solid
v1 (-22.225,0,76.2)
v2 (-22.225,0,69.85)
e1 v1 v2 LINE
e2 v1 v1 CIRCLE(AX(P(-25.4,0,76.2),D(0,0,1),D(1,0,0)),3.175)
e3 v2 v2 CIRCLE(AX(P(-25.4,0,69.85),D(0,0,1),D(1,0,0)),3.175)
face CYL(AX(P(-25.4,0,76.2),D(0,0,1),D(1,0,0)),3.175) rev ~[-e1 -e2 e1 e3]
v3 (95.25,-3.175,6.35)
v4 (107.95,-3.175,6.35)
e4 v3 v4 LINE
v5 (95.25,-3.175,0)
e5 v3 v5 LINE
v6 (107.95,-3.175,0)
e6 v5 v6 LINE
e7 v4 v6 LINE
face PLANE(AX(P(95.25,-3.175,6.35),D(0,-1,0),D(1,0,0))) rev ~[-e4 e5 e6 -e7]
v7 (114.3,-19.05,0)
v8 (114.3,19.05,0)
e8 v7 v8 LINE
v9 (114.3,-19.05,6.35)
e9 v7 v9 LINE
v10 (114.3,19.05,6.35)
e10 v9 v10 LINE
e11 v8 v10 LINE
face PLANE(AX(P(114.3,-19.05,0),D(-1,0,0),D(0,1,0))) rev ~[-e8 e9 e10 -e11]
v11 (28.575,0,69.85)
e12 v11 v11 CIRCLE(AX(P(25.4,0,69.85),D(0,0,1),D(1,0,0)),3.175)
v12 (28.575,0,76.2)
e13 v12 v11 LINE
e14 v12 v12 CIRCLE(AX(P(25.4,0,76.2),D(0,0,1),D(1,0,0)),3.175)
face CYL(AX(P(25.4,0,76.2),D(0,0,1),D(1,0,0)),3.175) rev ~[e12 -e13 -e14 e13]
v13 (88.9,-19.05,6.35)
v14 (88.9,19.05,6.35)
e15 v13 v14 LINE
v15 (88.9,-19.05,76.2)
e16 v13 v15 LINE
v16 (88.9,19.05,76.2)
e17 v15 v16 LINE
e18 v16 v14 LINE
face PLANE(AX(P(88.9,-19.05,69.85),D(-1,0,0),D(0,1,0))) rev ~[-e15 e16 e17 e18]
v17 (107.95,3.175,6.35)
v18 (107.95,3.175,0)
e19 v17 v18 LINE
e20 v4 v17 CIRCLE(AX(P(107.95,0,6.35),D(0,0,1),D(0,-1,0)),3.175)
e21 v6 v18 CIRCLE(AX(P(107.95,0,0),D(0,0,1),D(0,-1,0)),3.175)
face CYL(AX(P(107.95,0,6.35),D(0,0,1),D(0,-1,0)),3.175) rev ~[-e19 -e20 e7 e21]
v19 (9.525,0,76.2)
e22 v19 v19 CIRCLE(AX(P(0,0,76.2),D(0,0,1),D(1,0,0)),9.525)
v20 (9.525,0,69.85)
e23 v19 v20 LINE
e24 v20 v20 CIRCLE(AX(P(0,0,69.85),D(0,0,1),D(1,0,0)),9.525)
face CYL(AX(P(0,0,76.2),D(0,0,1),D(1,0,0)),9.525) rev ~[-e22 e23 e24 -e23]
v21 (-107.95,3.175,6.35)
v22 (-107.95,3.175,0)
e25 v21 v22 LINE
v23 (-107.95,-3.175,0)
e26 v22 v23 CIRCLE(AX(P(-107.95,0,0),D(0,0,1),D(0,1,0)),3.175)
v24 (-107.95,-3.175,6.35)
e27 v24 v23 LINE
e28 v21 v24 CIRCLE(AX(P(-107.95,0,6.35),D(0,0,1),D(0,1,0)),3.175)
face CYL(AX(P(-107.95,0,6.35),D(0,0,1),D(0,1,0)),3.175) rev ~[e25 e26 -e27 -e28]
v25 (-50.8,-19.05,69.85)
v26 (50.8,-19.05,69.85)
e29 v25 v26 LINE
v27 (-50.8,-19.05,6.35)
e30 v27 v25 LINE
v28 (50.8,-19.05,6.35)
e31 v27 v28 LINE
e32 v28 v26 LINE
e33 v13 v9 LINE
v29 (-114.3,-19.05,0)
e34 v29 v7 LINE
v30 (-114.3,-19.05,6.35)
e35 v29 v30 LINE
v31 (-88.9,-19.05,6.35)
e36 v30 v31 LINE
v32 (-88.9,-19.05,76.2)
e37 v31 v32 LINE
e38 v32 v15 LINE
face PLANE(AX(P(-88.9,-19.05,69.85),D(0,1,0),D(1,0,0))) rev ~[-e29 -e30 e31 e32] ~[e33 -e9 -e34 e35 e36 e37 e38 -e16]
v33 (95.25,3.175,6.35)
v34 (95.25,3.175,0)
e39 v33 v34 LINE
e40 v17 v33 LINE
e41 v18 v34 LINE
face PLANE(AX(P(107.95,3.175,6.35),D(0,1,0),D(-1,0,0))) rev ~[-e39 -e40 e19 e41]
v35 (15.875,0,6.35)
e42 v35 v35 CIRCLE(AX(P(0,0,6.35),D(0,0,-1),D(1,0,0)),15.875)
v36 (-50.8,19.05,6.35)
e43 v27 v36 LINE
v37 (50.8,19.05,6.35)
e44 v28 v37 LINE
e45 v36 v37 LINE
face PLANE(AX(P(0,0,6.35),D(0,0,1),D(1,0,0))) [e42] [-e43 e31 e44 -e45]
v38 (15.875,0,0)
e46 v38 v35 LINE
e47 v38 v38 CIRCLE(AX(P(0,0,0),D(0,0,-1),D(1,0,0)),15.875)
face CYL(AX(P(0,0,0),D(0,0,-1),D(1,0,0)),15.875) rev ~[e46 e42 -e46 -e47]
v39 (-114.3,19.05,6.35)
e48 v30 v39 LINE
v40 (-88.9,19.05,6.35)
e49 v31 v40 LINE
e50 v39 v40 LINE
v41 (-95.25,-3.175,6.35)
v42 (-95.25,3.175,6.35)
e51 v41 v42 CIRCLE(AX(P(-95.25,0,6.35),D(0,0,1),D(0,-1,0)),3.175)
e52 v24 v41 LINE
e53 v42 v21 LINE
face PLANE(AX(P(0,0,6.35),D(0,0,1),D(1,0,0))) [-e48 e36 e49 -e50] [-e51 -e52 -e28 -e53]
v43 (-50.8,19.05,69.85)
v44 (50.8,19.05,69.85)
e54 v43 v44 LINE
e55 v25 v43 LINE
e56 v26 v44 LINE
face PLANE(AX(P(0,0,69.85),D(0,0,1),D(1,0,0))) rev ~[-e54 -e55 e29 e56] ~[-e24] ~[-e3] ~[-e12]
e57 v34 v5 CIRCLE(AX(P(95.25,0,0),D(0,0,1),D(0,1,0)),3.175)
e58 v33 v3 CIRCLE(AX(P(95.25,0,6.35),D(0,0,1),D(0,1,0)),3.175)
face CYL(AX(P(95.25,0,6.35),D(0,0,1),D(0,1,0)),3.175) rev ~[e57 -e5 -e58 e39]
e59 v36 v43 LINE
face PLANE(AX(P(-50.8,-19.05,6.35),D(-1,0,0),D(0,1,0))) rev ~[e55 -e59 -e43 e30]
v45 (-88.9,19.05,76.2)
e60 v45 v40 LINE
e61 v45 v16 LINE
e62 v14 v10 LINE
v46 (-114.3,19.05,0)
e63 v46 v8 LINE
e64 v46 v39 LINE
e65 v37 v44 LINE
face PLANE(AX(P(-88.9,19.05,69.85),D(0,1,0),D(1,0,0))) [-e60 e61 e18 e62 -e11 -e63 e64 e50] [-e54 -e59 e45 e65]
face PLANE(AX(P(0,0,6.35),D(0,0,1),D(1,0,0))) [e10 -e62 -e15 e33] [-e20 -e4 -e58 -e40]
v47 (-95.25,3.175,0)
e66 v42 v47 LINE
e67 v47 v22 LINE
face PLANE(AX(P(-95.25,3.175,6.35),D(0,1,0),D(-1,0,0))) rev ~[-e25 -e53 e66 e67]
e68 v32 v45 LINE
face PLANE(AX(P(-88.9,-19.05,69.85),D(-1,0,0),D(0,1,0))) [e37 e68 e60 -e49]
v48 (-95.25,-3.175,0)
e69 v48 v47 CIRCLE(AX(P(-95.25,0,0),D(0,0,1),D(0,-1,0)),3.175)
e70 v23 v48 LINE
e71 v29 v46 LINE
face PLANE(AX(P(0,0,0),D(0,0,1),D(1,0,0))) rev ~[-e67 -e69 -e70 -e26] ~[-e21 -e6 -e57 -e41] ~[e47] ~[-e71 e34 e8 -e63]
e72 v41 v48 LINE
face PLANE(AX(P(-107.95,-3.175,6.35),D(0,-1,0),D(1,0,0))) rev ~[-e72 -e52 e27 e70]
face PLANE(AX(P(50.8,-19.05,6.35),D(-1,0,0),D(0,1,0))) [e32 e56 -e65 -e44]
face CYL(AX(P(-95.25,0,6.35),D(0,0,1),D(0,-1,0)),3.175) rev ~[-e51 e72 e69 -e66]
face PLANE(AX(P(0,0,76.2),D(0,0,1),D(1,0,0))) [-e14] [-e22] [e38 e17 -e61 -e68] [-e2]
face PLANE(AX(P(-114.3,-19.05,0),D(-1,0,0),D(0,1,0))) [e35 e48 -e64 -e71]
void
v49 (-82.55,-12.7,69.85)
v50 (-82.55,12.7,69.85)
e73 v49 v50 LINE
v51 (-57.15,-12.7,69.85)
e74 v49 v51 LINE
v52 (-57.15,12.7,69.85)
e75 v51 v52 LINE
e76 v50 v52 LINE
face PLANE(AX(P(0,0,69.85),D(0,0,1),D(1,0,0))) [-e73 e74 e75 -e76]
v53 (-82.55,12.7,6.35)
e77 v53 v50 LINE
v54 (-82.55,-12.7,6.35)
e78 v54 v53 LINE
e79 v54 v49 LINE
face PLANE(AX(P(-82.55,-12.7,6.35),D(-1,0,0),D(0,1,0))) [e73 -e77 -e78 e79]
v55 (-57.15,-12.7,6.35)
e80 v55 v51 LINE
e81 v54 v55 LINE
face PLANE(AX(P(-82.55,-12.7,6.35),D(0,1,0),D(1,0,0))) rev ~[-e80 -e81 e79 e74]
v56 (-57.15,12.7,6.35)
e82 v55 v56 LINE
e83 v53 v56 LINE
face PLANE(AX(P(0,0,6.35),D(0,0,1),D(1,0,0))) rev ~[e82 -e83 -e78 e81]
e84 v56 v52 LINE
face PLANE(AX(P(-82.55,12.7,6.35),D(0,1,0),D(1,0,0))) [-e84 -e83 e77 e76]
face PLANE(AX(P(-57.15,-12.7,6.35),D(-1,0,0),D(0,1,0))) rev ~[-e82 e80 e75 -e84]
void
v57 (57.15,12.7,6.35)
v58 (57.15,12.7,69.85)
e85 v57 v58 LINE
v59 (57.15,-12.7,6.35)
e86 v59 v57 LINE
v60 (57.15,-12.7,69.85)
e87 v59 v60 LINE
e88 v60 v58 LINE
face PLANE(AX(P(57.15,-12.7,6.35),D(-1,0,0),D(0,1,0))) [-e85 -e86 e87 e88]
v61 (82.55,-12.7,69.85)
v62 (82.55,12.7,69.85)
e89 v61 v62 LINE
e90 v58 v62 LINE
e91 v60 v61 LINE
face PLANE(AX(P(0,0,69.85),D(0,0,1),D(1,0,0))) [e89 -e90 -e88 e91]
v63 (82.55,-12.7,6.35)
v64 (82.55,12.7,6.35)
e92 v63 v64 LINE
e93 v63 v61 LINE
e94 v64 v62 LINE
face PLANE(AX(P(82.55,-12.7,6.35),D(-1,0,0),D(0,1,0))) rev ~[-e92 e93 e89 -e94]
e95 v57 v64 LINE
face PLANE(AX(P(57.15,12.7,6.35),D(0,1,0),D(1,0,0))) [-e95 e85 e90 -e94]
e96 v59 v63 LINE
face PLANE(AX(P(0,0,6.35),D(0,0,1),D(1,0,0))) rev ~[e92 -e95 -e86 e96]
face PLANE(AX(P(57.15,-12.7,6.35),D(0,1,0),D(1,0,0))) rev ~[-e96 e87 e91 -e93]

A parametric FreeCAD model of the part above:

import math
import FreeCAD as App
import Part
import Sketcher
from FreeCAD import Vector
Q = App.Units.Quantity

doc = App.newDocument("Part")
body = doc.addObject("PartDesign::Body", "Body")

# Sketch on XY plane
sketch1 = body.newObject("Sketcher::SketchObject", "Sketch")
sketch1.AttachmentSupport = (doc.getObject("XY_Plane"), [""])
sketch1.MapMode = "FlatFace"
sketch1.addGeometry([
    Part.LineSegment(Vector(-114, 19, 0), Vector(-114, -19, 0)),
    Part.LineSegment(Vector(-114, -19, 0), Vector(114, -19, 0)),
    Part.LineSegment(Vector(114, -19, 0), Vector(114, 19, 0)),
    Part.LineSegment(Vector(114, 19, 0), Vector(-114, 19, 0)),
], False)
sketch1.addConstraint([
    Sketcher.Constraint("Coincident", 0, 2, 1, 1),
    Sketcher.Constraint("Coincident", 1, 2, 2, 1),
    Sketcher.Constraint("Coincident", 2, 2, 3, 1),
    Sketcher.Constraint("Coincident", 3, 2, 0, 1),
    Sketcher.Constraint("Vertical", 0),
    Sketcher.Constraint("Horizontal", 1),
    Sketcher.Constraint("Vertical", 2),
    Sketcher.Constraint("Horizontal", 3),
    Sketcher.Constraint("Symmetric", 0, 2, 2, 2, -1, 1),
    Sketcher.Constraint("DistanceX", 1, 1, 1, 2, Q("9 in")),
    Sketcher.Constraint("DistanceY", 0, 2, 0, 1, Q("1.5 in")),
])
pad1 = body.newObject("PartDesign::Pad", "Pad")
pad1.Profile = sketch1
pad1.Length = Q("0.25 in")

# Sketch on XY plane
sketch2 = body.newObject("Sketcher::SketchObject", "Sketch001")
sketch2.AttachmentSupport = (doc.getObject("XY_Plane"), [""])
sketch2.MapMode = "FlatFace"
sketch2.AttachmentOffset = App.Placement(Vector(0, 0, 0.25 * 25.4), App.Rotation())
sketch2.addGeometry([
    Part.LineSegment(Vector(51, 19, 0), Vector(51, -19, 0)),  # 0
    Part.LineSegment(Vector(51, -19, 0), Vector(89, -19, 0)),  # 1
    Part.LineSegment(Vector(89, -19, 0), Vector(89, 19, 0)),  # 2
    Part.LineSegment(Vector(89, 19, 0), Vector(51, 19, 0)),  # 3
    Part.LineSegment(Vector(83, -13, 0), Vector(57, -13, 0)),  # 4
    Part.LineSegment(Vector(57, -13, 0), Vector(57, 13, 0)),  # 5
    Part.LineSegment(Vector(57, 13, 0), Vector(83, 13, 0)),  # 6
    Part.LineSegment(Vector(83, 13, 0), Vector(83, -13, 0)),  # 7
    Part.LineSegment(Vector(-89, 19, 0), Vector(-89, -19, 0)),  # 8
    Part.LineSegment(Vector(-89, -19, 0), Vector(-51, -19, 0)),  # 9
    Part.LineSegment(Vector(-51, -19, 0), Vector(-51, 19, 0)),  # 10
    Part.LineSegment(Vector(-51, 19, 0), Vector(-89, 19, 0)),  # 11
    Part.LineSegment(Vector(-57, -13, 0), Vector(-83, -13, 0)),  # 12
    Part.LineSegment(Vector(-83, -13, 0), Vector(-83, 13, 0)),  # 13
    Part.LineSegment(Vector(-83, 13, 0), Vector(-57, 13, 0)),  # 14
    Part.LineSegment(Vector(-57, 13, 0), Vector(-57, -13, 0)),  # 15
], False)
sketch2.addConstraint([
    Sketcher.Constraint("Coincident", 0, 2, 1, 1),
    Sketcher.Constraint("Coincident", 1, 2, 2, 1),
    Sketcher.Constraint("Coincident", 2, 2, 3, 1),
    Sketcher.Constraint("Coincident", 3, 2, 0, 1),
    Sketcher.Constraint("Coincident", 4, 2, 5, 1),
    Sketcher.Constraint("Coincident", 5, 2, 6, 1),
    Sketcher.Constraint("Coincident", 6, 2, 7, 1),
    Sketcher.Constraint("Coincident", 7, 2, 4, 1),
    Sketcher.Constraint("Coincident", 8, 2, 9, 1),
    Sketcher.Constraint("Coincident", 9, 2, 10, 1),
    Sketcher.Constraint("Coincident", 10, 2, 11, 1),
    Sketcher.Constraint("Coincident", 11, 2, 8, 1),
    Sketcher.Constraint("Coincident", 12, 2, 13, 1),
    Sketcher.Constraint("Coincident", 13, 2, 14, 1),
    Sketcher.Constraint("Coincident", 14, 2, 15, 1),
    Sketcher.Constraint("Coincident", 15, 2, 12, 1),
    Sketcher.Constraint("Vertical", 0),
    Sketcher.Constraint("Horizontal", 1),
    Sketcher.Constraint("Vertical", 2),
    Sketcher.Constraint("Horizontal", 3),
    Sketcher.Constraint("Horizontal", 4),
    Sketcher.Constraint("Vertical", 5),
    Sketcher.Constraint("Horizontal", 6),
    Sketcher.Constraint("Vertical", 7),
    Sketcher.Constraint("Vertical", 8),
    Sketcher.Constraint("Horizontal", 9),
    Sketcher.Constraint("Vertical", 10),
    Sketcher.Constraint("Horizontal", 11),
    Sketcher.Constraint("Horizontal", 12),
    Sketcher.Constraint("Vertical", 13),
    Sketcher.Constraint("Horizontal", 14),
    Sketcher.Constraint("Vertical", 15),
    Sketcher.Constraint("Symmetric", 2, 2, 8, 2, -1, 1),
    Sketcher.Constraint("Symmetric", 0, 2, 10, 2, -1, 1),
    Sketcher.Constraint("Symmetric", 6, 2, 12, 2, -1, 1),
    Sketcher.Constraint("Symmetric", 4, 2, 14, 2, -1, 1),
    Sketcher.Constraint("Horizontal", 1, 2, 8, 2),
    Sketcher.Constraint("Horizontal", 7, 2, 12, 2),
    Sketcher.Constraint("Equal", 11, 0),
    Sketcher.Constraint("Equal", 14, 5),
    Sketcher.Constraint("DistanceX", 4, 2, 4, 1, Q("1 in")),
    Sketcher.Constraint("DistanceX", 1, 1, 1, 2, Q("1.5 in")),
    Sketcher.Constraint("DistanceX", -1, 1, 0, 2, Q("2 in")),
    Sketcher.Constraint("DistanceX", -1, 1, 4, 2, Q("2.25 in")),
])
pad2 = body.newObject("PartDesign::Pad", "Pad001")
pad2.Profile = sketch2
pad2.Length = Q("2.5 in")

# Sketch on XY plane
sketch3 = body.newObject("Sketcher::SketchObject", "Sketch002")
sketch3.AttachmentSupport = (doc.getObject("XY_Plane"), [""])
sketch3.MapMode = "FlatFace"
sketch3.AttachmentOffset = App.Placement(Vector(0, 0, 2.75 * 25.4), App.Rotation())
sketch3.addGeometry([
    Part.LineSegment(Vector(-89, 19, 0), Vector(-89, -19, 0)),
    Part.LineSegment(Vector(-89, -19, 0), Vector(89, -19, 0)),
    Part.LineSegment(Vector(89, -19, 0), Vector(89, 19, 0)),
    Part.LineSegment(Vector(89, 19, 0), Vector(-89, 19, 0)),
], False)
sketch3.addConstraint([
    Sketcher.Constraint("Coincident", 0, 2, 1, 1),
    Sketcher.Constraint("Coincident", 1, 2, 2, 1),
    Sketcher.Constraint("Coincident", 2, 2, 3, 1),
    Sketcher.Constraint("Coincident", 3, 2, 0, 1),
    Sketcher.Constraint("Vertical", 0),
    Sketcher.Constraint("Horizontal", 1),
    Sketcher.Constraint("Vertical", 2),
    Sketcher.Constraint("Horizontal", 3),
    Sketcher.Constraint("Symmetric", 0, 2, 2, 2, -1, 1),
    Sketcher.Constraint("DistanceX", 1, 1, 1, 2, Q("7 in")),
    Sketcher.Constraint("DistanceY", 0, 2, 0, 1, Q("1.5 in")),
])
pad3 = body.newObject("PartDesign::Pad", "Pad002")
pad3.Profile = sketch3
pad3.Length = Q("0.25 in")

# Sketch on XY plane
sketch4 = body.newObject("Sketcher::SketchObject", "Sketch003")
sketch4.AttachmentSupport = (doc.getObject("XY_Plane"), [""])
sketch4.MapMode = "FlatFace"
sketch4.AttachmentOffset = App.Placement(Vector(0, 0, 3 * 25.4), App.Rotation())
sketch4.addGeometry([
    Part.Circle(Vector(0, 0, 0), Vector(0, 0, 1), 9.5),
    Part.Circle(Vector(25.4, 0, 0), Vector(0, 0, 1), 3.2),
    Part.Circle(Vector(-25.4, 0, 0), Vector(0, 0, 1), 3.2),
], False)
sketch4.addConstraint([
    Sketcher.Constraint("Coincident", 0, 3, -1, 1),
    Sketcher.Constraint("Equal", 1, 2),
    Sketcher.Constraint("Symmetric", 1, 3, 2, 3, -1, 1),
    Sketcher.Constraint("PointOnObject", 1, 3, -1),
    Sketcher.Constraint("Diameter", 0, Q("0.75 in")),
    Sketcher.Constraint("Diameter", 1, Q("0.25 in")),
    Sketcher.Constraint("DistanceX", -1, 1, 1, 3, Q("1 in")),
])
pocket1 = body.newObject("PartDesign::Pocket", "Pocket")
pocket1.Profile = sketch4
pocket1.Length = Q("1 in")

# Sketch on XY plane
sketch5 = body.newObject("Sketcher::SketchObject", "Sketch004")
sketch5.AttachmentSupport = (doc.getObject("XY_Plane"), [""])
sketch5.MapMode = "FlatFace"
sketch5.AttachmentOffset = App.Placement(Vector(0, 0, 0.25 * 25.4), App.Rotation())
sketch5.addGeometry([
    Part.LineSegment(Vector(-95.2, 3.2, 0), Vector(-108, 3.2, 0)),  # 0
    Part.ArcOfCircle(Part.Circle(Vector(-108, 0, 0), Vector(0, 0, 1), 3.2), math.radians(90), math.radians(270)),  # 1
    Part.LineSegment(Vector(-108, -3.2, 0), Vector(-95.2, -3.2, 0)),  # 2
    Part.ArcOfCircle(Part.Circle(Vector(-95.2, 0, 0), Vector(0, 0, 1), 3.2), math.radians(-90), math.radians(90)),  # 3
    Part.LineSegment(Vector(95.2, -3.2, 0), Vector(108, -3.2, 0)),  # 4
    Part.ArcOfCircle(Part.Circle(Vector(108, 0, 0), Vector(0, 0, 1), 3.2), math.radians(-90), math.radians(90)),  # 5
    Part.LineSegment(Vector(108, 3.2, 0), Vector(95.2, 3.2, 0)),  # 6
    Part.ArcOfCircle(Part.Circle(Vector(95.2, 0, 0), Vector(0, 0, 1), 3.2), math.radians(90), math.radians(270)),  # 7
], False)
sketch5.addConstraint([
    Sketcher.Constraint("Tangent", 0, 2, 1, 1),
    Sketcher.Constraint("Tangent", 1, 2, 2, 1),
    Sketcher.Constraint("Tangent", 2, 2, 3, 1),
    Sketcher.Constraint("Tangent", 3, 2, 0, 1),
    Sketcher.Constraint("Tangent", 4, 2, 5, 1),
    Sketcher.Constraint("Tangent", 5, 2, 6, 1),
    Sketcher.Constraint("Tangent", 6, 2, 7, 1),
    Sketcher.Constraint("Tangent", 7, 2, 4, 1),
    Sketcher.Constraint("Horizontal", 0),
    Sketcher.Constraint("Horizontal", 2),
    Sketcher.Constraint("Horizontal", 4),
    Sketcher.Constraint("Horizontal", 6),
    Sketcher.Constraint("Equal", 3, 5),
    Sketcher.Constraint("Symmetric", 1, 3, 5, 3, -1, 1),
    Sketcher.Constraint("Symmetric", 3, 3, 7, 3, -2),
    Sketcher.Constraint("DistanceX", 0, 2, 0, 1, Q("0.5 in")),
    Sketcher.Constraint("Radius", 1, Q("0.125 in")),
    Sketcher.Constraint("DistanceX", 3, 3, 5, 3, Q("8 in")),
])
pocket2 = body.newObject("PartDesign::Pocket", "Pocket001")
pocket2.Profile = sketch5
pocket2.Type = "ThroughAll"

# Sketch on XY plane
sketch6 = body.newObject("Sketcher::SketchObject", "Sketch005")
sketch6.AttachmentSupport = (doc.getObject("XY_Plane"), [""])
sketch6.MapMode = "FlatFace"
sketch6.addGeometry(Part.Circle(Vector(0, 0, 0), Vector(0, 0, 1), 16), False)
sketch6.addConstraint([
    Sketcher.Constraint("Coincident", 0, 3, -1, 1),
    Sketcher.Constraint("Diameter", 0, Q("1.25 in")),
])
pocket3 = body.newObject("PartDesign::Pocket", "Pocket002")
pocket3.Profile = sketch6
pocket3.Length = Q("1 in")
pocket3.Reversed = True

doc.recompute()
